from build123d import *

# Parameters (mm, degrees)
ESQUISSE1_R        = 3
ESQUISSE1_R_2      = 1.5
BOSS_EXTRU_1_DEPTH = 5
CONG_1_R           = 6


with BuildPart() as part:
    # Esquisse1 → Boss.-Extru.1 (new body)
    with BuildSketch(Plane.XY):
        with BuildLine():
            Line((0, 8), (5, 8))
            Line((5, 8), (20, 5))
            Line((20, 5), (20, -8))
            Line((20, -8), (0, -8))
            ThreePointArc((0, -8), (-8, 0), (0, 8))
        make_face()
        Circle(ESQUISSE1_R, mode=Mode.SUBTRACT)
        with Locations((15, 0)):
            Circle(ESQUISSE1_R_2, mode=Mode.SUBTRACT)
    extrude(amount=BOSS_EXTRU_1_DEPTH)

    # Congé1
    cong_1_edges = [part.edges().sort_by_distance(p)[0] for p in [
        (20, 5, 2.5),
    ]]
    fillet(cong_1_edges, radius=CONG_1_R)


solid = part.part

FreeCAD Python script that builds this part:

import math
import FreeCAD as App
import Part
import Sketcher


def edges_at(feature, points):
    """Names of the edges that pass closest to the given points."""
    edges = feature.Shape.Edges
    near = lambda p: min(range(len(edges)), key=lambda i: edges[i].distToShape(Part.Vertex(*p))[0])
    return sorted({f"Edge{near(p) + 1}" for p in points})

doc = App.newDocument("Part")
body = doc.addObject("PartDesign::Body", "Body")

# Sketch on XY plane
sketch1 = body.newObject("Sketcher::SketchObject", "Sketch")
sketch1.AttachmentSupport = (doc.getObject("XY_Plane"), [""])
sketch1.MapMode = "FlatFace"
sketch1.addGeometry(Part.LineSegment(App.Vector(5, 8, 0), App.Vector(0, 8, 0)), False)
sketch1.addGeometry(Part.ArcOfCircle(Part.Circle(App.Vector(0, 0, 0), App.Vector(0, 0, 1), 8), math.radians(90), math.radians(270)), False)
sketch1.addGeometry(Part.LineSegment(App.Vector(0, -8, 0), App.Vector(20, -8, 0)), False)
sketch1.addGeometry(Part.LineSegment(App.Vector(20, -8, 0), App.Vector(20, 5, 0)), False)
sketch1.addGeometry(Part.LineSegment(App.Vector(20, 5, 0), App.Vector(5, 8, 0)), False)
sketch1.addGeometry(Part.Circle(App.Vector(15, 0, 0), App.Vector(0, 0, 1), 1.5), False)
sketch1.addGeometry(Part.Circle(App.Vector(0, 0, 0), App.Vector(0, 0, 1), 3), False)
sketch1.addConstraint(Sketcher.Constraint("Tangent", 0, 2, 1, 1))
sketch1.addConstraint(Sketcher.Constraint("Tangent", 1, 2, 2, 1))
sketch1.addConstraint(Sketcher.Constraint("Coincident", 2, 2, 3, 1))
sketch1.addConstraint(Sketcher.Constraint("Coincident", 3, 2, 4, 1))
sketch1.addConstraint(Sketcher.Constraint("Coincident", 4, 2, 0, 1))
sketch1.addConstraint(Sketcher.Constraint("Horizontal", 0))
sketch1.addConstraint(Sketcher.Constraint("Horizontal", 2))
sketch1.addConstraint(Sketcher.Constraint("Vertical", 3))
sketch1.addConstraint(Sketcher.Constraint("Coincident", 1, 3, -1, 1))
sketch1.addConstraint(Sketcher.Constraint("Coincident", 6, 3, -1, 1))
sketch1.addConstraint(Sketcher.Constraint("PointOnObject", 5, 3, -1))
sketch1.addConstraint(Sketcher.Constraint("Diameter", 5, 3.0))
sketch1.addConstraint(Sketcher.Constraint("Diameter", 6, 6.0))
sketch1.addConstraint(Sketcher.Constraint("Radius", 1, 8.0))
sketch1.addConstraint(Sketcher.Constraint("DistanceX", 0, 2, 0, 1, 5.0))
sketch1.addConstraint(Sketcher.Constraint("DistanceX", 2, 1, 2, 2, 20.0))
sketch1.addConstraint(Sketcher.Constraint("DistanceY", 3, 1, 3, 2, 13.0))
sketch1.addConstraint(Sketcher.Constraint("DistanceX", -1, 1, 5, 3, 15.0))
pad1 = body.newObject("PartDesign::Pad", "Pad")
pad1.Profile = sketch1
pad1.Length = 5
doc.recompute()

fillet = body.newObject("PartDesign::Fillet", "Fillet")
fillet.Base = (pad1, edges_at(pad1, [(20, 5, 2.5)]))
fillet.Radius = 6

doc.recompute()
